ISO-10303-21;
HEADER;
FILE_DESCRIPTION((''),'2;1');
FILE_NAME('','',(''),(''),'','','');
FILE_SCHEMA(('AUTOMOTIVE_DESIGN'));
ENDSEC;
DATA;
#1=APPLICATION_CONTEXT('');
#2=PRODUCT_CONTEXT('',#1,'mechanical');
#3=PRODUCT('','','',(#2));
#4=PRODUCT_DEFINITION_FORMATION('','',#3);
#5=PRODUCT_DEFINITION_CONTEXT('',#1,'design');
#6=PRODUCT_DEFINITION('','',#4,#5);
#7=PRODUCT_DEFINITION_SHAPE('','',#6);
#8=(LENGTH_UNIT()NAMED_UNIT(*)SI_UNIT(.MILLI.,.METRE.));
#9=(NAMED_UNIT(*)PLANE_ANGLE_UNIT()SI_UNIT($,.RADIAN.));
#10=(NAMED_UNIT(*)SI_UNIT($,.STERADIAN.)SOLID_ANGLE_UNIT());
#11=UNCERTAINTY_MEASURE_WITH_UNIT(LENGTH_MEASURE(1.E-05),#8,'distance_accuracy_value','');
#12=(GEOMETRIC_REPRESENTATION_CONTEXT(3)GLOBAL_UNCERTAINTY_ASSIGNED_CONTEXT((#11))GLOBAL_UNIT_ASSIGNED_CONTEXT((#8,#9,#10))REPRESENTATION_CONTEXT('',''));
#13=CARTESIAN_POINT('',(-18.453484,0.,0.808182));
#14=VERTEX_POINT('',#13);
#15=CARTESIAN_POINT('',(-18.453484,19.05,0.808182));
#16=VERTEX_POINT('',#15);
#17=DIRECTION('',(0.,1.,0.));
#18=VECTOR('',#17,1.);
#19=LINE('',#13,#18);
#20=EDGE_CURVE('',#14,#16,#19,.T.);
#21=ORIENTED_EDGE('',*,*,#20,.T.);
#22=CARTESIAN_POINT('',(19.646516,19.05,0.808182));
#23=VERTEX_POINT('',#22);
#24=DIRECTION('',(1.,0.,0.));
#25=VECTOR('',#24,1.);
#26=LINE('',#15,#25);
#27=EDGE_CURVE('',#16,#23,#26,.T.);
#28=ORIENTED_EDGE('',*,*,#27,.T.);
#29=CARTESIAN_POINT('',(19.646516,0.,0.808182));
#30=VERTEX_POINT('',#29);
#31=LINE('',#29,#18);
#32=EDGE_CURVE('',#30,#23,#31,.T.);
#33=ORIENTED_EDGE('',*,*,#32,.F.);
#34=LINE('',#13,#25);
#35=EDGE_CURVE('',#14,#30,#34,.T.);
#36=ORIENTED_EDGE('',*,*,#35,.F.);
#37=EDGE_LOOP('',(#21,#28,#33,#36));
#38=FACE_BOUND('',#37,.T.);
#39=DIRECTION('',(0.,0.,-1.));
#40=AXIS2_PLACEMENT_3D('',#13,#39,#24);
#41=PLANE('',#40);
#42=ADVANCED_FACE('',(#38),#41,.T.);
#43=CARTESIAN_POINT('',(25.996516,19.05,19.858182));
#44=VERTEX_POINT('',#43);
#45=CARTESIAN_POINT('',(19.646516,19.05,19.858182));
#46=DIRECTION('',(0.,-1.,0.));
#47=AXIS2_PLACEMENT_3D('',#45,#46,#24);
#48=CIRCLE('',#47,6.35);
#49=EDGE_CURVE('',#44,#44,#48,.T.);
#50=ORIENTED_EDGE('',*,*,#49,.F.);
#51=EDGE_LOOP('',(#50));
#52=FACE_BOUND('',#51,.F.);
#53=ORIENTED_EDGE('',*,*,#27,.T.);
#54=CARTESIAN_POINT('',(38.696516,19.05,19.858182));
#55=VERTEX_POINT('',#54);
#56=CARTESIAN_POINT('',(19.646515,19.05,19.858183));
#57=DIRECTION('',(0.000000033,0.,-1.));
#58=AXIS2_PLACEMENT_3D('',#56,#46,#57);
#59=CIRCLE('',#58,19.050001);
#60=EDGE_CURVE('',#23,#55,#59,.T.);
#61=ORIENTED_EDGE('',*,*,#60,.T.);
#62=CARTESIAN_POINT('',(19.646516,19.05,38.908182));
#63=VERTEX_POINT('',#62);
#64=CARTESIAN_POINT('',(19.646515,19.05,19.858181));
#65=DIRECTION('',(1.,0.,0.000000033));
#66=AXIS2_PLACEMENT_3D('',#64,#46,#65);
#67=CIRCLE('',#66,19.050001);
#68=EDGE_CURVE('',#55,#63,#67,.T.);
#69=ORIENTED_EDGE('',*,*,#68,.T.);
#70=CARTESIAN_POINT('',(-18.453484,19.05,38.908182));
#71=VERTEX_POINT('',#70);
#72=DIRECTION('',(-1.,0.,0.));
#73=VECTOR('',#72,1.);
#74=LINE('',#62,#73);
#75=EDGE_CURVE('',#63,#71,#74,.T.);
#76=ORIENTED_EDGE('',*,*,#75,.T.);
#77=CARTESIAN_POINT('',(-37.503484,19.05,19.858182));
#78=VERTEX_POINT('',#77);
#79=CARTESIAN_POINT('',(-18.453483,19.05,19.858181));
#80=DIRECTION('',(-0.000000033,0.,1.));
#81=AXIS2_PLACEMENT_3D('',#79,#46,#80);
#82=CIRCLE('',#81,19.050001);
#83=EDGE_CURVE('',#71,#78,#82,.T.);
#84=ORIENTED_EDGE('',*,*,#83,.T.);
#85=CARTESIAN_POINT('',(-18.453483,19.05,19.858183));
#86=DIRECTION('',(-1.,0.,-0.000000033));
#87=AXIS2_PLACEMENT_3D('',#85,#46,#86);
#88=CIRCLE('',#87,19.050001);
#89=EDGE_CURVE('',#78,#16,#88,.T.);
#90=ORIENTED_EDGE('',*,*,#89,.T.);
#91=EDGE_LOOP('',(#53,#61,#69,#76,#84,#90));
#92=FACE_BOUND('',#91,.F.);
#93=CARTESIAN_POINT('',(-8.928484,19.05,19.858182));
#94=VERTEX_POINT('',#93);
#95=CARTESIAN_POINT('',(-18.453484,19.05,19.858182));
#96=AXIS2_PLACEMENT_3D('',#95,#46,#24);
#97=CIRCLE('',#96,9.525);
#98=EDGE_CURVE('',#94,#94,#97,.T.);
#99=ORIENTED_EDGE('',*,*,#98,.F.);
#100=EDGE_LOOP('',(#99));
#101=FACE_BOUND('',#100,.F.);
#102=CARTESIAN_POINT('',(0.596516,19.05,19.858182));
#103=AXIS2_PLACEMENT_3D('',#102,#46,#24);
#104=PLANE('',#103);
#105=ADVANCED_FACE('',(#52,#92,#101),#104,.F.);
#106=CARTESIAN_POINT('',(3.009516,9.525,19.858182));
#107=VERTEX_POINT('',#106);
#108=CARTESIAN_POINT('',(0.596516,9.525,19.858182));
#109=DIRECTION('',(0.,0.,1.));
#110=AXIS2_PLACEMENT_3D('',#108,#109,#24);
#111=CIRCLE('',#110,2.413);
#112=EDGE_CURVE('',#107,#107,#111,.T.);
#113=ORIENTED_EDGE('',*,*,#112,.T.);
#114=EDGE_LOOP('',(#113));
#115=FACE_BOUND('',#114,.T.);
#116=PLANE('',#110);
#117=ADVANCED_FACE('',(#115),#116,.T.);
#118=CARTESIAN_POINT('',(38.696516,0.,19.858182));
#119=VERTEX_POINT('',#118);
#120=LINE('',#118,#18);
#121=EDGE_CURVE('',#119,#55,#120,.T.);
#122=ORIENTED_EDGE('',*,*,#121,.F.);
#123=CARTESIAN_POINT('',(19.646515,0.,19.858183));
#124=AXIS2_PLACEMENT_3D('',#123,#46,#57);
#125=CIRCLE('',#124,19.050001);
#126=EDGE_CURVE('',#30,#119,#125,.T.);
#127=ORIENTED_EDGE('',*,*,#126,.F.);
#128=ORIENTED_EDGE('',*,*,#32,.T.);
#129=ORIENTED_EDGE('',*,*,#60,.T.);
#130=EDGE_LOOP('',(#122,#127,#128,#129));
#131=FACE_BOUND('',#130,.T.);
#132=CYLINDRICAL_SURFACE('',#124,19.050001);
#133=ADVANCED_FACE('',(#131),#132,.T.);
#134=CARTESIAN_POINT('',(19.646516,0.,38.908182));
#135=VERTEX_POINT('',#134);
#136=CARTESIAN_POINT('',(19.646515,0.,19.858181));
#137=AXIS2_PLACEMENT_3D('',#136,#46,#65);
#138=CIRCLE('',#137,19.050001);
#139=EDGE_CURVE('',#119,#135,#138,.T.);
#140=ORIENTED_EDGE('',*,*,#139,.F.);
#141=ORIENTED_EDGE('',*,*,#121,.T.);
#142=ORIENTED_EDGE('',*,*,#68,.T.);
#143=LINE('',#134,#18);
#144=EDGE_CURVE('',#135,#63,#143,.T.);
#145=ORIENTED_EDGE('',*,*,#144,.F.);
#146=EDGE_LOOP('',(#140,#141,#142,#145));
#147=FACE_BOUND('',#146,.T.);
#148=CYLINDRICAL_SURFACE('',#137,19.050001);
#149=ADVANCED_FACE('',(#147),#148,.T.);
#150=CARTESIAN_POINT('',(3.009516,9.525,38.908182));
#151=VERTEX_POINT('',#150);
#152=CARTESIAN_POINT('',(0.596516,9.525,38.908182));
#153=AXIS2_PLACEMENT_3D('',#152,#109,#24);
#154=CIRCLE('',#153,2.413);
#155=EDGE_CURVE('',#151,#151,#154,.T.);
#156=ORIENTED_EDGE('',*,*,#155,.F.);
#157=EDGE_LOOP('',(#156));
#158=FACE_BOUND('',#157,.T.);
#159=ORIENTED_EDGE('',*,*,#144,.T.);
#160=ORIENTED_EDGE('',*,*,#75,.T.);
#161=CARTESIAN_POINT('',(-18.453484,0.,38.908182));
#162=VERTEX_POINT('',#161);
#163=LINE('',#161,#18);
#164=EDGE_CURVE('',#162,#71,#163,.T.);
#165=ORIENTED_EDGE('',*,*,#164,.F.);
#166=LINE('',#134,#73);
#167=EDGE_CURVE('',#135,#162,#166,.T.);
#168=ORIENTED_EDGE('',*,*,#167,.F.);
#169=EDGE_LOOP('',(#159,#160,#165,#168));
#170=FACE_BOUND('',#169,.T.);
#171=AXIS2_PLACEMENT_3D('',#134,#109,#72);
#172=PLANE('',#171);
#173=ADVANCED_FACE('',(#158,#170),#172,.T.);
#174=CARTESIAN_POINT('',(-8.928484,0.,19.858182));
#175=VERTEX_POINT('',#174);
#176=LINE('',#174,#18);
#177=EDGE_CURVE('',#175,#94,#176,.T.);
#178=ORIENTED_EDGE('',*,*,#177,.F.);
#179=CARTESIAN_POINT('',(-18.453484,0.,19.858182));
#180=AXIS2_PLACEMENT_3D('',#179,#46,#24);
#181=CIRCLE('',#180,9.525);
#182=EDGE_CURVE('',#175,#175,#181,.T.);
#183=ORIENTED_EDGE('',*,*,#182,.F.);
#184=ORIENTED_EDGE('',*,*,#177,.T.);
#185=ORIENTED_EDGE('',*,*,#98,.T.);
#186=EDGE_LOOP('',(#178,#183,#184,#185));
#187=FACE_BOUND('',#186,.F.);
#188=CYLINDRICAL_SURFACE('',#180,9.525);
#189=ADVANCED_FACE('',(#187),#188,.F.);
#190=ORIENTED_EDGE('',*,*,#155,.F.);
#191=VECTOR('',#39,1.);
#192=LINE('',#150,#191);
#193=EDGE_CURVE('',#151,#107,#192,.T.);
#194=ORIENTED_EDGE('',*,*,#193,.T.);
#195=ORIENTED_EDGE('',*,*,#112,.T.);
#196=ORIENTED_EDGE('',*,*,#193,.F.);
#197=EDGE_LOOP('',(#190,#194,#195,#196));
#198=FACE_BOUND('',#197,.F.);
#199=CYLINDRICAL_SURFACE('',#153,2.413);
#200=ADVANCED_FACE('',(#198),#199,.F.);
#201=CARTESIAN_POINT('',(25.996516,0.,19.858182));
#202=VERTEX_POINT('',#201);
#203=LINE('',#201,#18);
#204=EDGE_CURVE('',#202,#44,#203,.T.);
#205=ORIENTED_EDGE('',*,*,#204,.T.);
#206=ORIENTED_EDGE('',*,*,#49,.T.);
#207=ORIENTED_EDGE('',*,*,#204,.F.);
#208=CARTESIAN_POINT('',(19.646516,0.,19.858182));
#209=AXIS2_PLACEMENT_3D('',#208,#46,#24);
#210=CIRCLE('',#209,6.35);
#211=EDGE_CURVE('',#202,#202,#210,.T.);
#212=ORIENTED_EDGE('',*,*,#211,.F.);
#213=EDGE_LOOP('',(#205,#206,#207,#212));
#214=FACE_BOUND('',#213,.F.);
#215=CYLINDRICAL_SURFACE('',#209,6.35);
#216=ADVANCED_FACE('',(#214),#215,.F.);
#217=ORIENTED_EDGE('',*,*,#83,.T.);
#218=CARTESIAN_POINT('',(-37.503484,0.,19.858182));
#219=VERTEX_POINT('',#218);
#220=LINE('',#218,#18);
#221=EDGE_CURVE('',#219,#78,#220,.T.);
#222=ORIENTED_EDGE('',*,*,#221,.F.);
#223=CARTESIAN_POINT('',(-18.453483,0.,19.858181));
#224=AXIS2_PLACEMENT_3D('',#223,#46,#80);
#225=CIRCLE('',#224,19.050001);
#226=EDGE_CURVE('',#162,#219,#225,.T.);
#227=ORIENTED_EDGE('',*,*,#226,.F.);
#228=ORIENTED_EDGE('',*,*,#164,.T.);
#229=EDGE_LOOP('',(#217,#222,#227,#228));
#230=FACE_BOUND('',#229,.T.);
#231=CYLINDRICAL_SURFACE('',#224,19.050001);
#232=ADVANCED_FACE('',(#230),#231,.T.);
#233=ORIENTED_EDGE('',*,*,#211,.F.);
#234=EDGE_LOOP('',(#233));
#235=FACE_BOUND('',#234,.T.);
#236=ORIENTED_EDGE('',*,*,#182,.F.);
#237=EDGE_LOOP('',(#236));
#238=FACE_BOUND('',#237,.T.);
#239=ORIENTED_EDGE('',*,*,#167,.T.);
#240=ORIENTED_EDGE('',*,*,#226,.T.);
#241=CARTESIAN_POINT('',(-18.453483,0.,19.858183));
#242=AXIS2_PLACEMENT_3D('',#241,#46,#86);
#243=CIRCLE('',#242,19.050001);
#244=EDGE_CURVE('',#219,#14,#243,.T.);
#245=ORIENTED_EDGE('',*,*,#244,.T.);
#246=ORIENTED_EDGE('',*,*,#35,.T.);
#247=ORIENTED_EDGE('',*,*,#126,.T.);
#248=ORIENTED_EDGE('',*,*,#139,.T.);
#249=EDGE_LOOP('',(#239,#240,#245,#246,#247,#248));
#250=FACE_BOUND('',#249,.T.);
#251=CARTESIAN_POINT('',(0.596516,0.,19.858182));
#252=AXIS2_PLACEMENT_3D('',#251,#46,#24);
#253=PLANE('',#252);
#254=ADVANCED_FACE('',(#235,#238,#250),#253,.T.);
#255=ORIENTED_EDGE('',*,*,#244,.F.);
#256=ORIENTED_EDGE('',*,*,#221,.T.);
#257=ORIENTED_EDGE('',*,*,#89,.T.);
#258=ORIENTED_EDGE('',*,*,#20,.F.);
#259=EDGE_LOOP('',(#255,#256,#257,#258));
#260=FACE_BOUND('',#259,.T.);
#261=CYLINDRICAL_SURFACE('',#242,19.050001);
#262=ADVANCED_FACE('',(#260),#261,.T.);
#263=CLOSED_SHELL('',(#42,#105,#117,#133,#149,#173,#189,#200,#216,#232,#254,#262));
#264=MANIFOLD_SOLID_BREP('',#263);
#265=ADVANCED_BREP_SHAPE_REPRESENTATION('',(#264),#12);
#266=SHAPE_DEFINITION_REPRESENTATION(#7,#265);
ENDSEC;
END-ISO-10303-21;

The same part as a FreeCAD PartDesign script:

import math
import FreeCAD as App
import Part
import Sketcher
Q = App.Units.Quantity

doc = App.newDocument("Part")
body = doc.addObject("PartDesign::Body", "Body")

sketch1 = body.newObject("Sketcher::SketchObject", "Sketch")
sketch1.AttachmentSupport = (doc.getObject("XZ_Plane"), [""])
sketch1.MapMode = "FlatFace"
sketch1.addGeometry(Part.ArcOfCircle(Part.Circle(App.Vector(-18, 20, 0), App.Vector(0, 0, 1), 19), math.radians(-180), math.radians(-90)), False)
sketch1.addGeometry(Part.LineSegment(App.Vector(-18, 1, 0), App.Vector(20, 1, 0)), False)
sketch1.addGeometry(Part.ArcOfCircle(Part.Circle(App.Vector(20, 20, 0), App.Vector(0, 0, 1), 19), math.radians(-90), math.radians(0)), False)
sketch1.addGeometry(Part.ArcOfCircle(Part.Circle(App.Vector(20, 20, 0), App.Vector(0, 0, 1), 19), math.radians(0), math.radians(90)), False)
sketch1.addGeometry(Part.LineSegment(App.Vector(20, 39, 0), App.Vector(-18, 39, 0)), False)
sketch1.addGeometry(Part.ArcOfCircle(Part.Circle(App.Vector(-18, 20, 0), App.Vector(0, 0, 1), 19), math.radians(90), math.radians(180)), False)
sketch1.addGeometry(Part.Circle(App.Vector(-18, 20, 0), App.Vector(0, 0, 1), 10), False)
sketch1.addGeometry(Part.Circle(App.Vector(20, 20, 0), App.Vector(0, 0, 1), 6), False)
sketch1.addConstraint(Sketcher.Constraint("Tangent", 0, 2, 1, 1))
sketch1.addConstraint(Sketcher.Constraint("Tangent", 1, 2, 2, 1))
sketch1.addConstraint(Sketcher.Constraint("Tangent", 2, 2, 3, 1))
sketch1.addConstraint(Sketcher.Constraint("Tangent", 3, 2, 4, 1))
sketch1.addConstraint(Sketcher.Constraint("Tangent", 4, 2, 5, 1))
sketch1.addConstraint(Sketcher.Constraint("Tangent", 5, 2, 0, 1))
sketch1.addConstraint(Sketcher.Constraint("Horizontal", 1))
sketch1.addConstraint(Sketcher.Constraint("Horizontal", 4))
sketch1.addConstraint(Sketcher.Constraint("Coincident", 6, 3, 0, 3))
sketch1.addConstraint(Sketcher.Constraint("Coincident", 7, 3, 2, 3))
sketch1.addConstraint(Sketcher.Constraint("Equal", 0, 2))
sketch1.addConstraint(Sketcher.Constraint("Equal", 2, 3))
sketch1.addConstraint(Sketcher.Constraint("Horizontal", 7, 3, 2, 2))
sketch1.addConstraint(Sketcher.Constraint("Horizontal", 2, 2, 5, 2))
sketch1.addConstraint(Sketcher.Constraint("Diameter", 7, Q("0.5 in")))
sketch1.addConstraint(Sketcher.Constraint("Diameter", 6, Q("0.75 in")))
sketch1.addConstraint(Sketcher.Constraint("Radius", 0, Q("0.75 in")))
sketch1.addConstraint(Sketcher.Constraint("DistanceX", 1, 1, 1, 2, Q("1.5 in")))
sketch1.addConstraint(Sketcher.Constraint("DistanceY", -1, 1, 3, 3, Q("19.858181 mm")))
sketch1.addConstraint(Sketcher.Constraint("DistanceX", 0, 3, -1, 1, Q("18.453483 mm")))
pad1 = body.newObject("PartDesign::Pad", "Pad")
pad1.Profile = sketch1
pad1.Length = Q("0.75 in")
pad1.Reversed = True

sketch2 = body.newObject("Sketcher::SketchObject", "Sketch001")
sketch2.AttachmentSupport = (doc.getObject("XY_Plane"), [""])
sketch2.MapMode = "FlatFace"
sketch2.AttachmentOffset = App.Placement(App.Vector(0, 0, 38.908182), App.Rotation())
sketch2.addGeometry(Part.Circle(App.Vector(0.6, 9.5, 0), App.Vector(0, 0, 1), 2.4), False)
sketch2.addConstraint(Sketcher.Constraint("Diameter", 0, Q("0.19 in")))
sketch2.addConstraint(Sketcher.Constraint("DistanceY", -1, 1, 0, 3, Q("0.375 in")))
sketch2.addConstraint(Sketcher.Constraint("DistanceX", -1, 1, 0, 3, Q("0.596516 mm")))
pocket1 = body.newObject("PartDesign::Pocket", "Pocket")
pocket1.Profile = sketch2
pocket1.Length = Q("0.75 in")

doc.recompute()
